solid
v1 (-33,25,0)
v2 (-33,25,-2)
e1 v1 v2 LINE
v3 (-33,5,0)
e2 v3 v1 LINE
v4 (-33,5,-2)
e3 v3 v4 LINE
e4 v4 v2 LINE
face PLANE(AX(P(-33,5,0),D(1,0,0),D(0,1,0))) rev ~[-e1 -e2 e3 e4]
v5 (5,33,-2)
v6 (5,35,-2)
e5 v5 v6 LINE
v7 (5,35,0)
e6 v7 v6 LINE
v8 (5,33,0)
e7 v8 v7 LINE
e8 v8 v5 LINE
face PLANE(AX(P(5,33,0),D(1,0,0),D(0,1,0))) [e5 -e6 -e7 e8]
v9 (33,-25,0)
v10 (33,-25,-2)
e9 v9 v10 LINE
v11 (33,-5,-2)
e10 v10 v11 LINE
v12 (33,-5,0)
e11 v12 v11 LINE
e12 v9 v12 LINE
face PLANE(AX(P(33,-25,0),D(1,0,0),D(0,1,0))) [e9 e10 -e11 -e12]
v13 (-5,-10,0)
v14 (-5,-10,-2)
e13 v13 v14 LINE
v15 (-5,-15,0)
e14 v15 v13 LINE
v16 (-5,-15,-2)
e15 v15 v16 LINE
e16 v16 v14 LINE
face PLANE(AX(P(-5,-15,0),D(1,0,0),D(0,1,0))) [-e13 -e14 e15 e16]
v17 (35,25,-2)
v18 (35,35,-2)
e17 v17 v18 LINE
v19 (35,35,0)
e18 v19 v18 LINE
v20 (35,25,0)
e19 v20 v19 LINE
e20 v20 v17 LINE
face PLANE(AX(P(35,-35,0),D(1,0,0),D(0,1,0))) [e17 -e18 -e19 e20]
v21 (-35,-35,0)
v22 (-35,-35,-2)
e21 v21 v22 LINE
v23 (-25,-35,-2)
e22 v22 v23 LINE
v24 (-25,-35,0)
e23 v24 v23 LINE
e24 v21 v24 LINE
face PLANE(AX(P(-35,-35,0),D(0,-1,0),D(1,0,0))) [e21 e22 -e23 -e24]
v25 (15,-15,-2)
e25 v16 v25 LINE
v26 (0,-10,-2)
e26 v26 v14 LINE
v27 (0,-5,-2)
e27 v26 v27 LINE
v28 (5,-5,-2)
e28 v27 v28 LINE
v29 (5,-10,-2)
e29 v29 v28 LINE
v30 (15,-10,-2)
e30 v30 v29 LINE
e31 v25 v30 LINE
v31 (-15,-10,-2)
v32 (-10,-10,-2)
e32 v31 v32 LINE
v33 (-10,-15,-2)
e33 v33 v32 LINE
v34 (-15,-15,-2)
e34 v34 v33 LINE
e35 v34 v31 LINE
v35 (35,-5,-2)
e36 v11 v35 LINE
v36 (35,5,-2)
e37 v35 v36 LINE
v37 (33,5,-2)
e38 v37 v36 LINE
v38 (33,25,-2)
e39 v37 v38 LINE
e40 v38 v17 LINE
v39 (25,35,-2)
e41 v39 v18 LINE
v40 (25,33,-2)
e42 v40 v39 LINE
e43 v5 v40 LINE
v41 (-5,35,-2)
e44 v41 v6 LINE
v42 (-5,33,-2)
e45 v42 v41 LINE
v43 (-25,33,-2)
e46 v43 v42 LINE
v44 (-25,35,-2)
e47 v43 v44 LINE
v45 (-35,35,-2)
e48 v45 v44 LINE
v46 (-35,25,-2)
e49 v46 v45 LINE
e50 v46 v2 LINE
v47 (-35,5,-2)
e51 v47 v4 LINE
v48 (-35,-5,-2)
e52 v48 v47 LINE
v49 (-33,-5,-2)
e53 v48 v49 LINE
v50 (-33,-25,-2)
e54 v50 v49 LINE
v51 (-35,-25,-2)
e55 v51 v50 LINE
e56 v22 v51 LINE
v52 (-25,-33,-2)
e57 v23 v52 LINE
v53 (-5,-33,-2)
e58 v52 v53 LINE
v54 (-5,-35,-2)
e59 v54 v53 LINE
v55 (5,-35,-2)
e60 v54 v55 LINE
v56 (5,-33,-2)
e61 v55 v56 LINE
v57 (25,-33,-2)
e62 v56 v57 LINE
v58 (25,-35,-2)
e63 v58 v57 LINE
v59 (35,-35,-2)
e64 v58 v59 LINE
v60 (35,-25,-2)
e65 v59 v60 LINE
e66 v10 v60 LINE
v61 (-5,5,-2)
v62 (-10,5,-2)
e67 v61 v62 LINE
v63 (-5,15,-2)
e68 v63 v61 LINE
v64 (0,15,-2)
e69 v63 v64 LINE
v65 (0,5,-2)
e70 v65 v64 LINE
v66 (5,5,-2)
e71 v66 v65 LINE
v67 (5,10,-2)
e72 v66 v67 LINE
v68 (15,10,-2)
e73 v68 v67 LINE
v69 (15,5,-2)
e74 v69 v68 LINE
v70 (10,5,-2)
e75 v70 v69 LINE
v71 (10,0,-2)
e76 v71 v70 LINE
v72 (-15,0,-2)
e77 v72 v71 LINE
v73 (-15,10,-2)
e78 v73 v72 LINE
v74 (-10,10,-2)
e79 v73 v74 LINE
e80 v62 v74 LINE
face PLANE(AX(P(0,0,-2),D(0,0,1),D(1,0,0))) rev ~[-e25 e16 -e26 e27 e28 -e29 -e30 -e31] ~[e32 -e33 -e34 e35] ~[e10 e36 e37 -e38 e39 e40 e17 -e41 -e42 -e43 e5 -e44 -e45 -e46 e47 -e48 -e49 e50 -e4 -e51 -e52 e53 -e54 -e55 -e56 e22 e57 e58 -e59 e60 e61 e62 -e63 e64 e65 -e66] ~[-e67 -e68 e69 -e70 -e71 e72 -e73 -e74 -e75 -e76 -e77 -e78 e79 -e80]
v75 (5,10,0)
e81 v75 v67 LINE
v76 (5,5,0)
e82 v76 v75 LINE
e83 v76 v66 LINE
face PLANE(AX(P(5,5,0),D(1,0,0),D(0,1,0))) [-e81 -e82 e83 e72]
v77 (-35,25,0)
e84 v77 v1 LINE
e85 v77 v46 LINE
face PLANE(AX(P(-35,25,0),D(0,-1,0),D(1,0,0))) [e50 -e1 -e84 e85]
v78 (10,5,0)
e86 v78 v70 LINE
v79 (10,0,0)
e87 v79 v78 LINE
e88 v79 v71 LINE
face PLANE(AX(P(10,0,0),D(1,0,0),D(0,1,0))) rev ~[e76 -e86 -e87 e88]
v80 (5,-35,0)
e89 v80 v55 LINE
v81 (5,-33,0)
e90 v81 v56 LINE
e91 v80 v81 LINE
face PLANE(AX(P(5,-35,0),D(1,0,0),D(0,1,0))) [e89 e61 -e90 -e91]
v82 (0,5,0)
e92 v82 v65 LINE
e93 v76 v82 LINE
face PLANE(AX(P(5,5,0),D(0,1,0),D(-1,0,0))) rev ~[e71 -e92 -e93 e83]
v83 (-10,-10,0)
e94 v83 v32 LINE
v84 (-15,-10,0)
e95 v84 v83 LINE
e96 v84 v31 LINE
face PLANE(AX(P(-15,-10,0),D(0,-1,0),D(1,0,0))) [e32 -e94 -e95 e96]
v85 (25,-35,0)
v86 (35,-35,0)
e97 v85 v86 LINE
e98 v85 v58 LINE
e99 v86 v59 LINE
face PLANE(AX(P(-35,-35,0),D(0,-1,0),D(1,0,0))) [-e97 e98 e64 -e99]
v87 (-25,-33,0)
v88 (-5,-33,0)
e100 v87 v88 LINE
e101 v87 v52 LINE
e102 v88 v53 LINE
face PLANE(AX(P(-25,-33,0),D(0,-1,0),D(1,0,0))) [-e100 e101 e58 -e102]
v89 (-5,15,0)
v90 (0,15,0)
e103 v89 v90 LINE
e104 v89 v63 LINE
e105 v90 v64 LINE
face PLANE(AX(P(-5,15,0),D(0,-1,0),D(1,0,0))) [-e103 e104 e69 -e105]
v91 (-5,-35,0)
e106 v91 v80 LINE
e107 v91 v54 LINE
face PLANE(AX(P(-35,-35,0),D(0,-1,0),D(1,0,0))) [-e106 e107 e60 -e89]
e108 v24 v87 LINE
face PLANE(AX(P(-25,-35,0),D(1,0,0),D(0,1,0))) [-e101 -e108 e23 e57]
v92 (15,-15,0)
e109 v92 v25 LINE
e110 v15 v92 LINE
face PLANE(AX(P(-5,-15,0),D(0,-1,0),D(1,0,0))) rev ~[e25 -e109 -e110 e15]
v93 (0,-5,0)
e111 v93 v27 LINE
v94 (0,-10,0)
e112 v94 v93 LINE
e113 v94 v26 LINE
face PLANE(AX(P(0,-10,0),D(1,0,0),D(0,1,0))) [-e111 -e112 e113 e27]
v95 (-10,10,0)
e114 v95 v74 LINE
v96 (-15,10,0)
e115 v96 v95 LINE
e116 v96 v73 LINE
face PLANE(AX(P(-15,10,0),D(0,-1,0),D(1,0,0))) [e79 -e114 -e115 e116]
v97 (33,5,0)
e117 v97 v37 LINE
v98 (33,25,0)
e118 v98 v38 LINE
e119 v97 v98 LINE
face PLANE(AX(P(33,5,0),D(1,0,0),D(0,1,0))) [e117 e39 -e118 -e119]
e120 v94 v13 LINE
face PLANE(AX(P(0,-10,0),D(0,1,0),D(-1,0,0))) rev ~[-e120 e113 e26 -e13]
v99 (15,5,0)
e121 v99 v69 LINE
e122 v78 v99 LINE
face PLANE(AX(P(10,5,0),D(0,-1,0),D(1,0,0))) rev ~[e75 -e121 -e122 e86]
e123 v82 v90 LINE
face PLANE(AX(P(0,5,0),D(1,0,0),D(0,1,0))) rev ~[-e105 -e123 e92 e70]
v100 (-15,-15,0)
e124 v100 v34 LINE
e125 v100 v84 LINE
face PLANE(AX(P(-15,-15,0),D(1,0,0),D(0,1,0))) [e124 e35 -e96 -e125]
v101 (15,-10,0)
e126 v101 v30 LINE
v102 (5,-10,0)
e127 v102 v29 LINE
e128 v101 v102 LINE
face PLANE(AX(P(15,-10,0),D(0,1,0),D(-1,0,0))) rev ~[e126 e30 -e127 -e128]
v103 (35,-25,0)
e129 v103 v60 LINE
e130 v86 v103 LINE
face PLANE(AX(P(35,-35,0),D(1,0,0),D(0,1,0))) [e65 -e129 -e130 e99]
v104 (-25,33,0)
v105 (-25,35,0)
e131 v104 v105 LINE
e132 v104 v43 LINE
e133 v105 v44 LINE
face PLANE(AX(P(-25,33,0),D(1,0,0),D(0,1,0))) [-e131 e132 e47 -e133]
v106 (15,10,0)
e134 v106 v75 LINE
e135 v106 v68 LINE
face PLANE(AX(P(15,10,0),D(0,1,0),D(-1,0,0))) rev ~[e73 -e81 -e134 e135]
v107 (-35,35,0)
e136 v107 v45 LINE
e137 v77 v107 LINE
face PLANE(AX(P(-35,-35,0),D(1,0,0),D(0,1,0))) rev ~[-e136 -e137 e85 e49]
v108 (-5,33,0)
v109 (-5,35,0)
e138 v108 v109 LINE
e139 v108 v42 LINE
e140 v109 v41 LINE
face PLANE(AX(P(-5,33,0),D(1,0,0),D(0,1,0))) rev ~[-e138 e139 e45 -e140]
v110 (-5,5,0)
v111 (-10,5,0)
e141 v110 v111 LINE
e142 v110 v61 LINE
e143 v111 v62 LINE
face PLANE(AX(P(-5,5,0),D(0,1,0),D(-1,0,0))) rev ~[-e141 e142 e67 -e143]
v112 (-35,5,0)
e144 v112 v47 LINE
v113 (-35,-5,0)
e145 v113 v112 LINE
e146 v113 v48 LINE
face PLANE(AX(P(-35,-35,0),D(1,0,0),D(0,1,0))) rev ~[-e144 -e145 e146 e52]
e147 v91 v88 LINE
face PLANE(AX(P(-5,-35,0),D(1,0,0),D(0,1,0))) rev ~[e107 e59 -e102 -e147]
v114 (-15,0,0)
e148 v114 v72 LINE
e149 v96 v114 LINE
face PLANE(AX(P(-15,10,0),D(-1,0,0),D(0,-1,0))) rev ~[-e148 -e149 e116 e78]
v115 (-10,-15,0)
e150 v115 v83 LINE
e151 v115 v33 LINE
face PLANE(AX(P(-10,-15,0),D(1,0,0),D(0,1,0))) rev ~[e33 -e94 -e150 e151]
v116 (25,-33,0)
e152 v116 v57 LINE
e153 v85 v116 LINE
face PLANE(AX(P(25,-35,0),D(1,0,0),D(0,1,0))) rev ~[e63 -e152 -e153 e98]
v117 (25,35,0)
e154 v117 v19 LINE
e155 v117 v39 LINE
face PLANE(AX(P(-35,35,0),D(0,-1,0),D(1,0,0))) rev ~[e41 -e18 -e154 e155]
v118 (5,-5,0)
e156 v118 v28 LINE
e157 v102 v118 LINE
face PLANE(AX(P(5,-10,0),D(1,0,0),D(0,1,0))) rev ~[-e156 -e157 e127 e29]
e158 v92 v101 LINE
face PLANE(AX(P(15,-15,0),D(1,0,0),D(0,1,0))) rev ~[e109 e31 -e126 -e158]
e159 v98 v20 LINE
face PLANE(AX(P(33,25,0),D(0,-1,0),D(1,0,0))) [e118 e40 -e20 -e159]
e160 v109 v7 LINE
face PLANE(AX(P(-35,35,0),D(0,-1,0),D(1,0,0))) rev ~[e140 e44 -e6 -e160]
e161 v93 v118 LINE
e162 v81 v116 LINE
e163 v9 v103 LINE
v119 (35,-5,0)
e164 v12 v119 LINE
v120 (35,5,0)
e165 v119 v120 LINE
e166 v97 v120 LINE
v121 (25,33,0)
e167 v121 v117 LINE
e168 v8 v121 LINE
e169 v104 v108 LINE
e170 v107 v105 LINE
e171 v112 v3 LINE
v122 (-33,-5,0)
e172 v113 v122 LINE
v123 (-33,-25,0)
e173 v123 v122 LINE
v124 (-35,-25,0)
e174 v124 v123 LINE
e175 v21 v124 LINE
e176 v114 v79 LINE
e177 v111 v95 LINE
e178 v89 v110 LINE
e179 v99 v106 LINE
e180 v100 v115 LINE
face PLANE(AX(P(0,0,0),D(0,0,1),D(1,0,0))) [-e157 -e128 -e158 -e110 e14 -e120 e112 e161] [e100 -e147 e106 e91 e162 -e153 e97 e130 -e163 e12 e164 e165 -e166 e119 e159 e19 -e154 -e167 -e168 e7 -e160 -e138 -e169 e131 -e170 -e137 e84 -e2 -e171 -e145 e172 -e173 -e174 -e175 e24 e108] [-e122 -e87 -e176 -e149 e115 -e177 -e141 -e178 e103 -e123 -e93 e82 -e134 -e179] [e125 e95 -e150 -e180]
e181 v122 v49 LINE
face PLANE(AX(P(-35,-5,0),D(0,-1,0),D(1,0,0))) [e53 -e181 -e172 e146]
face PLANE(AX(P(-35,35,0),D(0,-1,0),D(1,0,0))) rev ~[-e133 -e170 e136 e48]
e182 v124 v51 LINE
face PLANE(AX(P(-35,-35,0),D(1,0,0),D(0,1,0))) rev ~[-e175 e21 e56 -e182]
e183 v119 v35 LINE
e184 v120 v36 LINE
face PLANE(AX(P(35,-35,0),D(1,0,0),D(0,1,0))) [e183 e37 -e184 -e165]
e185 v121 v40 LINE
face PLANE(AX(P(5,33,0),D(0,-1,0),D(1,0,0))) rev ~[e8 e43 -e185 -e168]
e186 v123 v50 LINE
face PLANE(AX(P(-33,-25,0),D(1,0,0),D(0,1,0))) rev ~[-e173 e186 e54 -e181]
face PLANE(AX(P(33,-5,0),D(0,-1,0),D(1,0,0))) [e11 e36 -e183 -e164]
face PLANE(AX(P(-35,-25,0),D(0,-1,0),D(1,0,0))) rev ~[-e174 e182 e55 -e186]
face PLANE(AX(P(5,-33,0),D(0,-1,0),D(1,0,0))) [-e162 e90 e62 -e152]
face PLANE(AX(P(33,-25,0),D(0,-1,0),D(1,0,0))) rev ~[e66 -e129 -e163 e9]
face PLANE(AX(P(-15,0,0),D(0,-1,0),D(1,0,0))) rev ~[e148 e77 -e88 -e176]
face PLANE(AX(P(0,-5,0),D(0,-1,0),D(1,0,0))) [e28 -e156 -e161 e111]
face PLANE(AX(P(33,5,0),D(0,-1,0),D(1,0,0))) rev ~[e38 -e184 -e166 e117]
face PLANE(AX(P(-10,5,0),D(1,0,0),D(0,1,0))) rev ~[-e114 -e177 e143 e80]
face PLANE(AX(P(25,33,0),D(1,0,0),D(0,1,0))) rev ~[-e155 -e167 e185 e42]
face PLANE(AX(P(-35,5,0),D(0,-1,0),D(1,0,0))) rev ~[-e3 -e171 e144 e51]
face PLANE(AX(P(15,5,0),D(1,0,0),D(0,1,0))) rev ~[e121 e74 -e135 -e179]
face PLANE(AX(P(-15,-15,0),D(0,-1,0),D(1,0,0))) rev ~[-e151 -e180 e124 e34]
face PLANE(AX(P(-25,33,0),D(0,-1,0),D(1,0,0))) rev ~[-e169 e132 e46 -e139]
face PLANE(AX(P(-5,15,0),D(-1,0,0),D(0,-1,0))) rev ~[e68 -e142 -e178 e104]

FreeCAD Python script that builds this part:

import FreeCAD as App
import Part
import Sketcher

V = App.Vector


def add_polygon(sketch, points):
    """Adds a closed chain of lines whose ends are joined by coincident constraints."""
    first, n = sketch.GeometryCount, len(points)
    for a, b in zip(points, points[1:] + points[:1]):
        sketch.addGeometry(Part.LineSegment(App.Vector(*a, 0), App.Vector(*b, 0)), False)
    for i in range(n):
        sketch.addConstraint(Sketcher.Constraint("Coincident", first + i, 2, first + (i + 1) % n, 1))

doc = App.newDocument("Part")
body = doc.addObject("PartDesign::Body", "Body")

sketch1 = body.newObject("Sketcher::SketchObject", "Sketch")
sketch1.AttachmentSupport = (doc.getObject("XY_Plane"), [""])
sketch1.MapMode = "FlatFace"
add_polygon(sketch1, [(-35, 35), (-35, -35), (35, -35), (35, 35)])
sketch1.addConstraint([
    Sketcher.Constraint("Vertical", 0),
    Sketcher.Constraint("Horizontal", 1),
    Sketcher.Constraint("Vertical", 2),
    Sketcher.Constraint("Horizontal", 3),
    Sketcher.Constraint("Symmetric", 0, 2, 2, 2, -1, 1),
    Sketcher.Constraint("Equal", 3, 0),
    Sketcher.Constraint("DistanceX", 1, 1, 1, 2, 70.0),
])
pad1 = body.newObject("PartDesign::Pad", "Pad")
pad1.Profile = sketch1
pad1.Length = 2
pad1.Reversed = True

sketch2 = body.newObject("Sketcher::SketchObject", "Sketch001")
sketch2.AttachmentSupport = (doc.getObject("XY_Plane"), [""])
sketch2.MapMode = "FlatFace"
add_polygon(sketch2, [(-35, 25), (-35, 5), (-33, 5), (-33, 25)])
add_polygon(sketch2, [(-35, -5), (-35, -25), (-33, -25), (-33, -5)])
add_polygon(sketch2, [(-25, -33), (-25, -35), (-5, -35), (-5, -33)])
add_polygon(sketch2, [(5, -33), (5, -35), (25, -35), (25, -33)])
add_polygon(sketch2, [(33, -5), (33, -25), (35, -25), (35, -5)])
add_polygon(sketch2, [(33, 25), (33, 5), (35, 5), (35, 25)])
add_polygon(sketch2, [(5, 35), (5, 33), (25, 33), (25, 35)])
add_polygon(sketch2, [(-25, 35), (-25, 33), (-5, 33), (-5, 35)])
sketch2.addConstraint([
    Sketcher.Constraint("Vertical", 0),
    Sketcher.Constraint("Horizontal", 1),
    Sketcher.Constraint("Vertical", 2),
    Sketcher.Constraint("Horizontal", 3),
    Sketcher.Constraint("Vertical", 4),
    Sketcher.Constraint("Horizontal", 5),
    Sketcher.Constraint("Vertical", 6),
    Sketcher.Constraint("Horizontal", 7),
    Sketcher.Constraint("Vertical", 8),
    Sketcher.Constraint("Horizontal", 9),
    Sketcher.Constraint("Vertical", 10),
    Sketcher.Constraint("Horizontal", 11),
    Sketcher.Constraint("Vertical", 12),
    Sketcher.Constraint("Horizontal", 13),
    Sketcher.Constraint("Vertical", 14),
    Sketcher.Constraint("Horizontal", 15),
    Sketcher.Constraint("Vertical", 16),
    Sketcher.Constraint("Horizontal", 17),
    Sketcher.Constraint("Vertical", 18),
    Sketcher.Constraint("Horizontal", 19),
    Sketcher.Constraint("Vertical", 20),
    Sketcher.Constraint("Horizontal", 21),
    Sketcher.Constraint("Vertical", 22),
    Sketcher.Constraint("Horizontal", 23),
    Sketcher.Constraint("Vertical", 24),
    Sketcher.Constraint("Horizontal", 25),
    Sketcher.Constraint("Vertical", 26),
    Sketcher.Constraint("Horizontal", 27),
    Sketcher.Constraint("Vertical", 28),
    Sketcher.Constraint("Horizontal", 29),
    Sketcher.Constraint("Vertical", 30),
    Sketcher.Constraint("Horizontal", 31),
    Sketcher.Constraint("Symmetric", 2, 2, 16, 2, -1, 1),
    Sketcher.Constraint("Symmetric", 0, 2, 18, 2, -1, 1),
    Sketcher.Constraint("Symmetric", 6, 2, 20, 2, -1, 1),
    Sketcher.Constraint("Symmetric", 4, 2, 22, 2, -1, 1),
    Sketcher.Constraint("Symmetric", 10, 2, 24, 2, -1, 1),
    Sketcher.Constraint("Symmetric", 8, 2, 26, 2, -1, 1),
    Sketcher.Constraint("Symmetric", 14, 2, 28, 2, -1, 1),
    Sketcher.Constraint("Symmetric", 12, 2, 30, 2, -1, 1),
    Sketcher.Constraint("Symmetric", 9, 2, 12, 2, -2),
    Sketcher.Constraint("Symmetric", 11, 2, 14, 2, -2),
    Sketcher.Constraint("Symmetric", 5, 2, 16, 2, -2),
    Sketcher.Constraint("Symmetric", 7, 2, 18, 2, -2),
    Sketcher.Constraint("Equal", 31, 0),
    Sketcher.Constraint("Equal", 23, 8),
    Sketcher.Constraint("DistanceX", 1, 1, 1, 2, 2.0),
    Sketcher.Constraint("DistanceX", 9, 1, 9, 2, 20.0),
    Sketcher.Constraint("DistanceX", 0, 2, -1, 1, 35.0),
    Sketcher.Constraint("DistanceY", -1, 1, 0, 2, 5.0),
    Sketcher.Constraint("DistanceX", 8, 2, -1, 1, 25.0),
    Sketcher.Constraint("DistanceY", 8, 2, -1, 1, 35.0),
])
pocket1 = body.newObject("PartDesign::Pocket", "Pocket")
pocket1.Profile = sketch2
pocket1.Length = 2

sketch3 = body.newObject("Sketcher::SketchObject", "Sketch002")
sketch3.AttachmentSupport = (doc.getObject("XY_Plane"), [""])
sketch3.MapMode = "FlatFace"
add_polygon(sketch3, [(-15, 10), (-15, 0), (10, 0), (10, 5), (15, 5), (15, 10), (5, 10), (5, 5), (0, 5), (0, 15), (-5, 15), (-5, 5), (-10, 5), (-10, 10)])
add_polygon(sketch3, [(-15, -10), (-15, -15), (-10, -15), (-10, -10)])
add_polygon(sketch3, [(-5, -10), (-5, -15), (15, -15), (15, -10), (5, -10), (5, -5), (0, -5), (0, -10)])
sketch3.addConstraint([
    Sketcher.Constraint("Vertical", 0),
    Sketcher.Constraint("Horizontal", 1),
    Sketcher.Constraint("Vertical", 2),
    Sketcher.Constraint("Horizontal", 3),
    Sketcher.Constraint("Vertical", 4),
    Sketcher.Constraint("Horizontal", 5),
    Sketcher.Constraint("Vertical", 6),
    Sketcher.Constraint("Horizontal", 7),
    Sketcher.Constraint("Vertical", 8),
    Sketcher.Constraint("Horizontal", 9),
    Sketcher.Constraint("Vertical", 10),
    Sketcher.Constraint("Horizontal", 11),
    Sketcher.Constraint("Vertical", 12),
    Sketcher.Constraint("Horizontal", 13),
    Sketcher.Constraint("Vertical", 14),
    Sketcher.Constraint("Horizontal", 15),
    Sketcher.Constraint("Vertical", 16),
    Sketcher.Constraint("Horizontal", 17),
    Sketcher.Constraint("Vertical", 18),
    Sketcher.Constraint("Horizontal", 19),
    Sketcher.Constraint("Vertical", 20),
    Sketcher.Constraint("Horizontal", 21),
    Sketcher.Constraint("Vertical", 22),
    Sketcher.Constraint("Horizontal", 23),
    Sketcher.Constraint("Vertical", 24),
    Sketcher.Constraint("Horizontal", 25),
    Sketcher.Constraint("Symmetric", 4, 2, 17, 2, -1, 1),
    Sketcher.Constraint("Symmetric", 13, 2, 20, 2, -1, 1),
    Sketcher.Constraint("Symmetric", 10, 2, 22, 2, -1, 1),
    Sketcher.Constraint("Symmetric", 7, 2, 23, 2, -1, 1),
    Sketcher.Constraint("Symmetric", 5, 2, 25, 2, -1, 1),
    Sketcher.Constraint("Symmetric", 2, 2, 11, 2, -2),
    Sketcher.Constraint("Symmetric", 4, 2, 13, 2, -2),
    Sketcher.Constraint("Symmetric", 9, 2, 18, 2, -1),
    Sketcher.Constraint("PointOnObject", 0, 2, -1),
    Sketcher.Constraint("PointOnObject", 7, 2, -2),
    Sketcher.Constraint("Horizontal", 15, 2, 18, 2),
    Sketcher.Constraint("Vertical", 12, 2, 15, 2),
    Sketcher.Constraint("Equal", 3, 7),
    Sketcher.Constraint("Equal", 9, 11),
    Sketcher.Constraint("Equal", 21, 0),
    Sketcher.Constraint("Equal", 25, 2),
    Sketcher.Constraint("Equal", 0, 8),
    Sketcher.Constraint("DistanceX", 1, 1, 1, 2, 25.0),
])
pocket2 = body.newObject("PartDesign::Pocket", "Pocket001")
pocket2.Profile = sketch3
pocket2.Length = 10

doc.recompute()
